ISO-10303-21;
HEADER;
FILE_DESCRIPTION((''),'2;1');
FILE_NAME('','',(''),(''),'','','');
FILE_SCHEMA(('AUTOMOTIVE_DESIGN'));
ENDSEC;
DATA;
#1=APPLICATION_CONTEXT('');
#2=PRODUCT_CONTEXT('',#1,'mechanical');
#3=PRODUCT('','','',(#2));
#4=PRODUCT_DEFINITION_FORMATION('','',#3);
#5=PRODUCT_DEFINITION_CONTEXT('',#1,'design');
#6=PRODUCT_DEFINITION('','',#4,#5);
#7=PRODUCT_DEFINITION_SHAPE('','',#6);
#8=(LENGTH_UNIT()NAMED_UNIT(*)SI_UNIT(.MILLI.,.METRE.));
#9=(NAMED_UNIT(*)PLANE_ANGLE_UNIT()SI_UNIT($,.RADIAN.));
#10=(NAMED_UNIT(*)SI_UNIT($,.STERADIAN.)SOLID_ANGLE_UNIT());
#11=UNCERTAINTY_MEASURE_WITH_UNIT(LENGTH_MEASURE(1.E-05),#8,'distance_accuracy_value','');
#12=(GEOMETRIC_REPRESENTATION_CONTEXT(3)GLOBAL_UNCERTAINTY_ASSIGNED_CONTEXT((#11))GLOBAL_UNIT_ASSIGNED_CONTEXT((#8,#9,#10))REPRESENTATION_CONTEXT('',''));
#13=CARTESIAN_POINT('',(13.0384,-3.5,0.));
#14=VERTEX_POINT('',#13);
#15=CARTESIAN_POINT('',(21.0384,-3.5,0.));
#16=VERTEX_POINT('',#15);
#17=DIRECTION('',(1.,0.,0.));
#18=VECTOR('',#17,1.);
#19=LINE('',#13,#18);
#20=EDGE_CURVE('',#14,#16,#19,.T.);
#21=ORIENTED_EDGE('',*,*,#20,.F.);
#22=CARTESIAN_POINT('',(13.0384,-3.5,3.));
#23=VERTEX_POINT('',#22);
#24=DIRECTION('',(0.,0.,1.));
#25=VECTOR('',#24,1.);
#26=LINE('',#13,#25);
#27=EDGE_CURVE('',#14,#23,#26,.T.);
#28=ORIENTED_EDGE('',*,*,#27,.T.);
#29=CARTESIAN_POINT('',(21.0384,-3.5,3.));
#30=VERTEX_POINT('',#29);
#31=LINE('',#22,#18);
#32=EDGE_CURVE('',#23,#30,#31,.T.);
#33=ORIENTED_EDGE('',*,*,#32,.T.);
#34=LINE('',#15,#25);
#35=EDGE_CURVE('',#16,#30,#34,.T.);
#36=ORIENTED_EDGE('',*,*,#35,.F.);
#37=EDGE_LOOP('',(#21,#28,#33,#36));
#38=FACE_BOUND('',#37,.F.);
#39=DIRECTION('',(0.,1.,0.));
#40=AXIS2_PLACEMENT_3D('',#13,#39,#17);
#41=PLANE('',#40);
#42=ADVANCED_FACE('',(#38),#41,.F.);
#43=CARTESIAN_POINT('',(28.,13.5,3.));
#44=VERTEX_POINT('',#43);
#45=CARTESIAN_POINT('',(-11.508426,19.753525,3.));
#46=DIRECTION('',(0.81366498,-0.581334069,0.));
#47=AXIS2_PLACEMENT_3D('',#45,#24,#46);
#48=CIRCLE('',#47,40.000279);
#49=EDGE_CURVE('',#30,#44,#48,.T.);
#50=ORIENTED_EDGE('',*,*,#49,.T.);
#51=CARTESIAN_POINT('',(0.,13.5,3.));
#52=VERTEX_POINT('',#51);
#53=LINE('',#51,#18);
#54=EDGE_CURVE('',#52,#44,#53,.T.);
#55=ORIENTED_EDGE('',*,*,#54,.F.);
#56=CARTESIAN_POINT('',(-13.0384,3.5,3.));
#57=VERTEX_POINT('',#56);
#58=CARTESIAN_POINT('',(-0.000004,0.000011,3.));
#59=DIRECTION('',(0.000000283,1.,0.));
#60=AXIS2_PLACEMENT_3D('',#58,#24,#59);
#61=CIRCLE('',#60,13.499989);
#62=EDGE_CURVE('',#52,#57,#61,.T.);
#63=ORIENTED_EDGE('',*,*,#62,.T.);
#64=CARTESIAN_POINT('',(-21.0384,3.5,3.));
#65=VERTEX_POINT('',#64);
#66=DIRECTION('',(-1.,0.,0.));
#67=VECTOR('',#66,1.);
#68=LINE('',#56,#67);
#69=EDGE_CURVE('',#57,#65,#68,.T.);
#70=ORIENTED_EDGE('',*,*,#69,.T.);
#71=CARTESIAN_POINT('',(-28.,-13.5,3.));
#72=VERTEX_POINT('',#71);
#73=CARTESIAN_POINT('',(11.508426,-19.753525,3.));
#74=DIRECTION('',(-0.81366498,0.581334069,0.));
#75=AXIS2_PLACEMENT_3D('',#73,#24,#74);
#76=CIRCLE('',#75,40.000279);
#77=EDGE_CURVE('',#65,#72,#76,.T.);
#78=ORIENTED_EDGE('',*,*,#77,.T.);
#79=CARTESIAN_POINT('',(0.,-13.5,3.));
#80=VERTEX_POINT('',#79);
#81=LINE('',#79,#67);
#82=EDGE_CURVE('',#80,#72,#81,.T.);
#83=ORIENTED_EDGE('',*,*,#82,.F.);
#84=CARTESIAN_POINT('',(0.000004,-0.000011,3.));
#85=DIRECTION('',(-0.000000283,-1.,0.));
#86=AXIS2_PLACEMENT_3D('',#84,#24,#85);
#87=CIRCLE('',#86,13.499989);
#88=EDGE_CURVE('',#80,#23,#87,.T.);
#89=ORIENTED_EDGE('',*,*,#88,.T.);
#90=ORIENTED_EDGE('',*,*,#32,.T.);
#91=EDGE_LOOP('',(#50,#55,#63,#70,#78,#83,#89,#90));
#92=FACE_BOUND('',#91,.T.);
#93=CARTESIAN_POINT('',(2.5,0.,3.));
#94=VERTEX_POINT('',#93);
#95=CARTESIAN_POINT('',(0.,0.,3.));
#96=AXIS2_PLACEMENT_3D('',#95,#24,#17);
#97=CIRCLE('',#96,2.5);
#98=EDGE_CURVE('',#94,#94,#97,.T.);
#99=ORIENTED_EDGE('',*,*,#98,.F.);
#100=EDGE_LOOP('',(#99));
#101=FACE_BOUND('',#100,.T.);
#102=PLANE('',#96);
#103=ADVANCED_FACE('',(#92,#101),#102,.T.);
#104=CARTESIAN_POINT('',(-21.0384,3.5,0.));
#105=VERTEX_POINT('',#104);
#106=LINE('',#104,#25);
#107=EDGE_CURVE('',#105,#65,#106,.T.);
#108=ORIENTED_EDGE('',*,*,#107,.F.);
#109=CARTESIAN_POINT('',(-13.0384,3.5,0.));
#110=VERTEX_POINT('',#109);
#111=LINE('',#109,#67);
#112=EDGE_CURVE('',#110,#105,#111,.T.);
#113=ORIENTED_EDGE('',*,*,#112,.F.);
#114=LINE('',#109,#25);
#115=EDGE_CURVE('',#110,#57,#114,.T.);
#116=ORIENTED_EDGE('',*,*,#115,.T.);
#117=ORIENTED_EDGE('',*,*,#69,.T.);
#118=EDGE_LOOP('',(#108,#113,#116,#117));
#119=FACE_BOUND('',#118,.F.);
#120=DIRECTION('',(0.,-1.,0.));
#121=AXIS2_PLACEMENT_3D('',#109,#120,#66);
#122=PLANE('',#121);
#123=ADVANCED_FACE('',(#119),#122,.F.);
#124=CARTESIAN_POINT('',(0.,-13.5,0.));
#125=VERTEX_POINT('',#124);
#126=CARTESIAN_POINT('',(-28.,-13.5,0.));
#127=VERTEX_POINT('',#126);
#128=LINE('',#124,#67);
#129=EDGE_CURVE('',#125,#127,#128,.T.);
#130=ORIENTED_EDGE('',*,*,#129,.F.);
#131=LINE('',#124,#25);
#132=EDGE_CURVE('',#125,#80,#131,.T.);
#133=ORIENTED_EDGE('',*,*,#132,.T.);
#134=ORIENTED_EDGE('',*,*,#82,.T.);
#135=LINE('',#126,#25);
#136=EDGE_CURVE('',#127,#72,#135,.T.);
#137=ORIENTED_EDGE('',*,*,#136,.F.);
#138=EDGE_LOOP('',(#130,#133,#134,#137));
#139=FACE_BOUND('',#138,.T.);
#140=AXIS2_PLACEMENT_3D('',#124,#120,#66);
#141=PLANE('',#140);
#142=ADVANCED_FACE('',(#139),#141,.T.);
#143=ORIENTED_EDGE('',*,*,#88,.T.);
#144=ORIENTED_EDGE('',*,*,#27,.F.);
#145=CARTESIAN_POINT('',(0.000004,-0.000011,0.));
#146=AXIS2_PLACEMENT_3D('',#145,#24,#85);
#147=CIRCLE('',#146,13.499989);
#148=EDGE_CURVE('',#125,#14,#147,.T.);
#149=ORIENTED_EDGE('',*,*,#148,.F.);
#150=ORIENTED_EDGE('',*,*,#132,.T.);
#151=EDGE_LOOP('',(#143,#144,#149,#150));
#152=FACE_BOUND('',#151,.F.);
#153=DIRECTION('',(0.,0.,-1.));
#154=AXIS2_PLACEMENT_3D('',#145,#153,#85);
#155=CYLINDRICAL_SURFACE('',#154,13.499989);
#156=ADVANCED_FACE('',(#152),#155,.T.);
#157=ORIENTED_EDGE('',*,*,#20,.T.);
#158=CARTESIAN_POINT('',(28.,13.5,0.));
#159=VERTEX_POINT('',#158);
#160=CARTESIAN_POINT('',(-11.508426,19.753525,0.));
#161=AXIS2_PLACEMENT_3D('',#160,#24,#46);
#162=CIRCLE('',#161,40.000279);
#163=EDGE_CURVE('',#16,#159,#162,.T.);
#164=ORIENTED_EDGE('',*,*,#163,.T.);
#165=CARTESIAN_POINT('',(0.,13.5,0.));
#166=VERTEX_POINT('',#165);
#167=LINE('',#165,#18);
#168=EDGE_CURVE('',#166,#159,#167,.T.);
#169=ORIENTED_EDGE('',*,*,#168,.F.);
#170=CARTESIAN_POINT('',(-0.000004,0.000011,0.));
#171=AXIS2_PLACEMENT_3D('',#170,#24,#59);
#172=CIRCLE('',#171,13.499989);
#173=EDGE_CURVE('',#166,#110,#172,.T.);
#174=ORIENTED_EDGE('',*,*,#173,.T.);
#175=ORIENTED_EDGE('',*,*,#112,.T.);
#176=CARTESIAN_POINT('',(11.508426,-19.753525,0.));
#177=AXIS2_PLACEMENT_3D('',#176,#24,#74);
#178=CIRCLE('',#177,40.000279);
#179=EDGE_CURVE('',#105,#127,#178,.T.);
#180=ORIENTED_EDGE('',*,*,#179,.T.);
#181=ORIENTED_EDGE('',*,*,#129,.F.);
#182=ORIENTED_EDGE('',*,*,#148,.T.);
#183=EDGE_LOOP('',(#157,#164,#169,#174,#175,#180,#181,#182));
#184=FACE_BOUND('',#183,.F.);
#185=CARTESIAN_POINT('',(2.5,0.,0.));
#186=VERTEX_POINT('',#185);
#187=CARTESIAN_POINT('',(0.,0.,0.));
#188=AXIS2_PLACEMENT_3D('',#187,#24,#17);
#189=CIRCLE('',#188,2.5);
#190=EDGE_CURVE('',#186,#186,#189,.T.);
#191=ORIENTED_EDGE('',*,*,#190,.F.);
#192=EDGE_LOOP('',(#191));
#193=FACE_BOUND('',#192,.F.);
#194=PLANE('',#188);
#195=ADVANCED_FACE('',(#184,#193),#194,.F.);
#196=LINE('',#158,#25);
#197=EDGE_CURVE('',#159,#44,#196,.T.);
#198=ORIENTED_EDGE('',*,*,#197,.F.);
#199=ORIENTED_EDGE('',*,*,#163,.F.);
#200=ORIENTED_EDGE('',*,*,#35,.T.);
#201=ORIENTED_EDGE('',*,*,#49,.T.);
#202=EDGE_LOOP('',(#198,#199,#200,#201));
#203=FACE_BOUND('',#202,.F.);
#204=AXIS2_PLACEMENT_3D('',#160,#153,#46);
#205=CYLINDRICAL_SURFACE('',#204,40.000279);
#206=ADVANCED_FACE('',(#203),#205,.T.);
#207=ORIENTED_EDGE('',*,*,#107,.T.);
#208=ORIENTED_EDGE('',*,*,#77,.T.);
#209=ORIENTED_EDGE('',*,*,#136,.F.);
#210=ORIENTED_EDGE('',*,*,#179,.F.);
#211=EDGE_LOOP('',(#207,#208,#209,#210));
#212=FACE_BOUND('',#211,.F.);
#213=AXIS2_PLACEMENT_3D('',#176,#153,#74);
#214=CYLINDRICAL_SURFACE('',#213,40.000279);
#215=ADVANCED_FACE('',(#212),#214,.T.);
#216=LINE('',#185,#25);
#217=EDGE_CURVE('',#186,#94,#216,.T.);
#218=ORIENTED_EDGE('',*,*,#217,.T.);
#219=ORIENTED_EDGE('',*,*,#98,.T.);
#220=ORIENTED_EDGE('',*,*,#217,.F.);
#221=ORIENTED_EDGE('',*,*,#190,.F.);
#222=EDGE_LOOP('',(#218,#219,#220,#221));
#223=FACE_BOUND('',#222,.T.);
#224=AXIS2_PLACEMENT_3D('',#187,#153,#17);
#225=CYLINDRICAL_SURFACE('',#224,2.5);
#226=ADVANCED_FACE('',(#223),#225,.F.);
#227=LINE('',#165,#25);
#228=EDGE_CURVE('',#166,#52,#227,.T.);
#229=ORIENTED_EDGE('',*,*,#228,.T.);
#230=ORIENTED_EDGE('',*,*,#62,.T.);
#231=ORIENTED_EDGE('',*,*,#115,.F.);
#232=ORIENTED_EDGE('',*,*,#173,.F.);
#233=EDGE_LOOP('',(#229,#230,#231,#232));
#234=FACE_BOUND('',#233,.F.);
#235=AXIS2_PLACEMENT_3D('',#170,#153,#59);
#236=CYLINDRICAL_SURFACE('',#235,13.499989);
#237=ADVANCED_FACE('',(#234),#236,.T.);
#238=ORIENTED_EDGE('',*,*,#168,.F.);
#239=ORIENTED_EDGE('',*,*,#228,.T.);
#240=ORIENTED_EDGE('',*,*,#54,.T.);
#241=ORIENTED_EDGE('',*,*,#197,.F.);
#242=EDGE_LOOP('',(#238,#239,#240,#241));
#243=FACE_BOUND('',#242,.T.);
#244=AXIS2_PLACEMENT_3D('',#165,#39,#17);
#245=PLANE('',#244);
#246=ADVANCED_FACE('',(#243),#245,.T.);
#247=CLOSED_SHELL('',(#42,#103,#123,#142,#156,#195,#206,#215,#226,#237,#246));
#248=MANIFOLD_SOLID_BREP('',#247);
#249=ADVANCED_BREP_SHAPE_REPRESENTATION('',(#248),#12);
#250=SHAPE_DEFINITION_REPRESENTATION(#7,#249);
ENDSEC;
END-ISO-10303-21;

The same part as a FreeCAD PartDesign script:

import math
import FreeCAD as App
import Part
import Sketcher

V = App.Vector

doc = App.newDocument("Part")
body = doc.addObject("PartDesign::Body", "Body")

# Sketch on XY plane
sketch1 = body.newObject("Sketcher::SketchObject", "Sketch")
sketch1.AttachmentSupport = (doc.getObject("XY_Plane"), [""])
sketch1.MapMode = "FlatFace"
sketch1.addGeometry([
    Part.ArcOfCircle(Part.Circle(V(0, 0, 0), V(0, 0, 1), 13.5), math.radians(-90), math.radians(-15.026119)),  # 0
    Part.LineSegment(V(13.0384, -3.5, 0), V(21.0384, -3.5, 0)),  # 1
    Part.ArcOfCircle(Part.Circle(V(-11.5082, 19.7534, 0), V(0, 0, 1), 40.000022), math.radians(-35.544471), math.radians(-8.994222)),  # 2
    Part.LineSegment(V(28, 13.5, 0), V(0, 13.5, 0)),  # 3
    Part.ArcOfCircle(Part.Circle(V(0, 0, 0), V(0, 0, 1), 13.5), math.radians(90), math.radians(164.973881)),  # 4
    Part.LineSegment(V(-13.0384, 3.5, 0), V(-21.0384, 3.5, 0)),  # 5
    Part.ArcOfCircle(Part.Circle(V(11.5082, -19.7534, 0), V(0, 0, 1), 40.000022), math.radians(144.455529), math.radians(171.005778)),  # 6
    Part.LineSegment(V(-28, -13.5, 0), V(0, -13.5, 0)),  # 7
    Part.Circle(V(0, 0, 0), V(0, 0, 1), 2.5),  # 8
], False)
sketch1.addConstraint([
    Sketcher.Constraint("Coincident", 0, 2, 1, 1),
    Sketcher.Constraint("Coincident", 1, 2, 2, 1),
    Sketcher.Constraint("Coincident", 2, 2, 3, 1),
    Sketcher.Constraint("Tangent", 3, 2, 4, 1),
    Sketcher.Constraint("Coincident", 4, 2, 5, 1),
    Sketcher.Constraint("Coincident", 5, 2, 6, 1),
    Sketcher.Constraint("Coincident", 6, 2, 7, 1),
    Sketcher.Constraint("Tangent", 7, 2, 0, 1),
    Sketcher.Constraint("Horizontal", 1),
    Sketcher.Constraint("Horizontal", 3),
    Sketcher.Constraint("Horizontal", 5),
    Sketcher.Constraint("Horizontal", 7),
    Sketcher.Constraint("Coincident", 0, 3, -1, 1),
    Sketcher.Constraint("Coincident", 4, 3, -1, 1),
    Sketcher.Constraint("Coincident", 8, 3, -1, 1),
    Sketcher.Constraint("Equal", 0, 4),
    Sketcher.Constraint("Equal", 2, 6),
    Sketcher.Constraint("Symmetric", 2, 3, 6, 3, -1, 1),
    Sketcher.Constraint("Equal", 1, 5),
    Sketcher.Constraint("Diameter", 8, 5.0),
    Sketcher.Constraint("Radius", 2, 40.0),
    Sketcher.Constraint("DistanceX", 1, 1, 1, 2, 8.0),
    Sketcher.Constraint("DistanceX", 3, 2, 3, 1, 28.0),
    Sketcher.Constraint("Radius", 0, 13.5),
    Sketcher.Constraint("DistanceY", 1, 2, 2, 2, 17.0),
])
pad1 = body.newObject("PartDesign::Pad", "Pad")
pad1.Profile = sketch1
pad1.Length = 3

doc.recompute()
